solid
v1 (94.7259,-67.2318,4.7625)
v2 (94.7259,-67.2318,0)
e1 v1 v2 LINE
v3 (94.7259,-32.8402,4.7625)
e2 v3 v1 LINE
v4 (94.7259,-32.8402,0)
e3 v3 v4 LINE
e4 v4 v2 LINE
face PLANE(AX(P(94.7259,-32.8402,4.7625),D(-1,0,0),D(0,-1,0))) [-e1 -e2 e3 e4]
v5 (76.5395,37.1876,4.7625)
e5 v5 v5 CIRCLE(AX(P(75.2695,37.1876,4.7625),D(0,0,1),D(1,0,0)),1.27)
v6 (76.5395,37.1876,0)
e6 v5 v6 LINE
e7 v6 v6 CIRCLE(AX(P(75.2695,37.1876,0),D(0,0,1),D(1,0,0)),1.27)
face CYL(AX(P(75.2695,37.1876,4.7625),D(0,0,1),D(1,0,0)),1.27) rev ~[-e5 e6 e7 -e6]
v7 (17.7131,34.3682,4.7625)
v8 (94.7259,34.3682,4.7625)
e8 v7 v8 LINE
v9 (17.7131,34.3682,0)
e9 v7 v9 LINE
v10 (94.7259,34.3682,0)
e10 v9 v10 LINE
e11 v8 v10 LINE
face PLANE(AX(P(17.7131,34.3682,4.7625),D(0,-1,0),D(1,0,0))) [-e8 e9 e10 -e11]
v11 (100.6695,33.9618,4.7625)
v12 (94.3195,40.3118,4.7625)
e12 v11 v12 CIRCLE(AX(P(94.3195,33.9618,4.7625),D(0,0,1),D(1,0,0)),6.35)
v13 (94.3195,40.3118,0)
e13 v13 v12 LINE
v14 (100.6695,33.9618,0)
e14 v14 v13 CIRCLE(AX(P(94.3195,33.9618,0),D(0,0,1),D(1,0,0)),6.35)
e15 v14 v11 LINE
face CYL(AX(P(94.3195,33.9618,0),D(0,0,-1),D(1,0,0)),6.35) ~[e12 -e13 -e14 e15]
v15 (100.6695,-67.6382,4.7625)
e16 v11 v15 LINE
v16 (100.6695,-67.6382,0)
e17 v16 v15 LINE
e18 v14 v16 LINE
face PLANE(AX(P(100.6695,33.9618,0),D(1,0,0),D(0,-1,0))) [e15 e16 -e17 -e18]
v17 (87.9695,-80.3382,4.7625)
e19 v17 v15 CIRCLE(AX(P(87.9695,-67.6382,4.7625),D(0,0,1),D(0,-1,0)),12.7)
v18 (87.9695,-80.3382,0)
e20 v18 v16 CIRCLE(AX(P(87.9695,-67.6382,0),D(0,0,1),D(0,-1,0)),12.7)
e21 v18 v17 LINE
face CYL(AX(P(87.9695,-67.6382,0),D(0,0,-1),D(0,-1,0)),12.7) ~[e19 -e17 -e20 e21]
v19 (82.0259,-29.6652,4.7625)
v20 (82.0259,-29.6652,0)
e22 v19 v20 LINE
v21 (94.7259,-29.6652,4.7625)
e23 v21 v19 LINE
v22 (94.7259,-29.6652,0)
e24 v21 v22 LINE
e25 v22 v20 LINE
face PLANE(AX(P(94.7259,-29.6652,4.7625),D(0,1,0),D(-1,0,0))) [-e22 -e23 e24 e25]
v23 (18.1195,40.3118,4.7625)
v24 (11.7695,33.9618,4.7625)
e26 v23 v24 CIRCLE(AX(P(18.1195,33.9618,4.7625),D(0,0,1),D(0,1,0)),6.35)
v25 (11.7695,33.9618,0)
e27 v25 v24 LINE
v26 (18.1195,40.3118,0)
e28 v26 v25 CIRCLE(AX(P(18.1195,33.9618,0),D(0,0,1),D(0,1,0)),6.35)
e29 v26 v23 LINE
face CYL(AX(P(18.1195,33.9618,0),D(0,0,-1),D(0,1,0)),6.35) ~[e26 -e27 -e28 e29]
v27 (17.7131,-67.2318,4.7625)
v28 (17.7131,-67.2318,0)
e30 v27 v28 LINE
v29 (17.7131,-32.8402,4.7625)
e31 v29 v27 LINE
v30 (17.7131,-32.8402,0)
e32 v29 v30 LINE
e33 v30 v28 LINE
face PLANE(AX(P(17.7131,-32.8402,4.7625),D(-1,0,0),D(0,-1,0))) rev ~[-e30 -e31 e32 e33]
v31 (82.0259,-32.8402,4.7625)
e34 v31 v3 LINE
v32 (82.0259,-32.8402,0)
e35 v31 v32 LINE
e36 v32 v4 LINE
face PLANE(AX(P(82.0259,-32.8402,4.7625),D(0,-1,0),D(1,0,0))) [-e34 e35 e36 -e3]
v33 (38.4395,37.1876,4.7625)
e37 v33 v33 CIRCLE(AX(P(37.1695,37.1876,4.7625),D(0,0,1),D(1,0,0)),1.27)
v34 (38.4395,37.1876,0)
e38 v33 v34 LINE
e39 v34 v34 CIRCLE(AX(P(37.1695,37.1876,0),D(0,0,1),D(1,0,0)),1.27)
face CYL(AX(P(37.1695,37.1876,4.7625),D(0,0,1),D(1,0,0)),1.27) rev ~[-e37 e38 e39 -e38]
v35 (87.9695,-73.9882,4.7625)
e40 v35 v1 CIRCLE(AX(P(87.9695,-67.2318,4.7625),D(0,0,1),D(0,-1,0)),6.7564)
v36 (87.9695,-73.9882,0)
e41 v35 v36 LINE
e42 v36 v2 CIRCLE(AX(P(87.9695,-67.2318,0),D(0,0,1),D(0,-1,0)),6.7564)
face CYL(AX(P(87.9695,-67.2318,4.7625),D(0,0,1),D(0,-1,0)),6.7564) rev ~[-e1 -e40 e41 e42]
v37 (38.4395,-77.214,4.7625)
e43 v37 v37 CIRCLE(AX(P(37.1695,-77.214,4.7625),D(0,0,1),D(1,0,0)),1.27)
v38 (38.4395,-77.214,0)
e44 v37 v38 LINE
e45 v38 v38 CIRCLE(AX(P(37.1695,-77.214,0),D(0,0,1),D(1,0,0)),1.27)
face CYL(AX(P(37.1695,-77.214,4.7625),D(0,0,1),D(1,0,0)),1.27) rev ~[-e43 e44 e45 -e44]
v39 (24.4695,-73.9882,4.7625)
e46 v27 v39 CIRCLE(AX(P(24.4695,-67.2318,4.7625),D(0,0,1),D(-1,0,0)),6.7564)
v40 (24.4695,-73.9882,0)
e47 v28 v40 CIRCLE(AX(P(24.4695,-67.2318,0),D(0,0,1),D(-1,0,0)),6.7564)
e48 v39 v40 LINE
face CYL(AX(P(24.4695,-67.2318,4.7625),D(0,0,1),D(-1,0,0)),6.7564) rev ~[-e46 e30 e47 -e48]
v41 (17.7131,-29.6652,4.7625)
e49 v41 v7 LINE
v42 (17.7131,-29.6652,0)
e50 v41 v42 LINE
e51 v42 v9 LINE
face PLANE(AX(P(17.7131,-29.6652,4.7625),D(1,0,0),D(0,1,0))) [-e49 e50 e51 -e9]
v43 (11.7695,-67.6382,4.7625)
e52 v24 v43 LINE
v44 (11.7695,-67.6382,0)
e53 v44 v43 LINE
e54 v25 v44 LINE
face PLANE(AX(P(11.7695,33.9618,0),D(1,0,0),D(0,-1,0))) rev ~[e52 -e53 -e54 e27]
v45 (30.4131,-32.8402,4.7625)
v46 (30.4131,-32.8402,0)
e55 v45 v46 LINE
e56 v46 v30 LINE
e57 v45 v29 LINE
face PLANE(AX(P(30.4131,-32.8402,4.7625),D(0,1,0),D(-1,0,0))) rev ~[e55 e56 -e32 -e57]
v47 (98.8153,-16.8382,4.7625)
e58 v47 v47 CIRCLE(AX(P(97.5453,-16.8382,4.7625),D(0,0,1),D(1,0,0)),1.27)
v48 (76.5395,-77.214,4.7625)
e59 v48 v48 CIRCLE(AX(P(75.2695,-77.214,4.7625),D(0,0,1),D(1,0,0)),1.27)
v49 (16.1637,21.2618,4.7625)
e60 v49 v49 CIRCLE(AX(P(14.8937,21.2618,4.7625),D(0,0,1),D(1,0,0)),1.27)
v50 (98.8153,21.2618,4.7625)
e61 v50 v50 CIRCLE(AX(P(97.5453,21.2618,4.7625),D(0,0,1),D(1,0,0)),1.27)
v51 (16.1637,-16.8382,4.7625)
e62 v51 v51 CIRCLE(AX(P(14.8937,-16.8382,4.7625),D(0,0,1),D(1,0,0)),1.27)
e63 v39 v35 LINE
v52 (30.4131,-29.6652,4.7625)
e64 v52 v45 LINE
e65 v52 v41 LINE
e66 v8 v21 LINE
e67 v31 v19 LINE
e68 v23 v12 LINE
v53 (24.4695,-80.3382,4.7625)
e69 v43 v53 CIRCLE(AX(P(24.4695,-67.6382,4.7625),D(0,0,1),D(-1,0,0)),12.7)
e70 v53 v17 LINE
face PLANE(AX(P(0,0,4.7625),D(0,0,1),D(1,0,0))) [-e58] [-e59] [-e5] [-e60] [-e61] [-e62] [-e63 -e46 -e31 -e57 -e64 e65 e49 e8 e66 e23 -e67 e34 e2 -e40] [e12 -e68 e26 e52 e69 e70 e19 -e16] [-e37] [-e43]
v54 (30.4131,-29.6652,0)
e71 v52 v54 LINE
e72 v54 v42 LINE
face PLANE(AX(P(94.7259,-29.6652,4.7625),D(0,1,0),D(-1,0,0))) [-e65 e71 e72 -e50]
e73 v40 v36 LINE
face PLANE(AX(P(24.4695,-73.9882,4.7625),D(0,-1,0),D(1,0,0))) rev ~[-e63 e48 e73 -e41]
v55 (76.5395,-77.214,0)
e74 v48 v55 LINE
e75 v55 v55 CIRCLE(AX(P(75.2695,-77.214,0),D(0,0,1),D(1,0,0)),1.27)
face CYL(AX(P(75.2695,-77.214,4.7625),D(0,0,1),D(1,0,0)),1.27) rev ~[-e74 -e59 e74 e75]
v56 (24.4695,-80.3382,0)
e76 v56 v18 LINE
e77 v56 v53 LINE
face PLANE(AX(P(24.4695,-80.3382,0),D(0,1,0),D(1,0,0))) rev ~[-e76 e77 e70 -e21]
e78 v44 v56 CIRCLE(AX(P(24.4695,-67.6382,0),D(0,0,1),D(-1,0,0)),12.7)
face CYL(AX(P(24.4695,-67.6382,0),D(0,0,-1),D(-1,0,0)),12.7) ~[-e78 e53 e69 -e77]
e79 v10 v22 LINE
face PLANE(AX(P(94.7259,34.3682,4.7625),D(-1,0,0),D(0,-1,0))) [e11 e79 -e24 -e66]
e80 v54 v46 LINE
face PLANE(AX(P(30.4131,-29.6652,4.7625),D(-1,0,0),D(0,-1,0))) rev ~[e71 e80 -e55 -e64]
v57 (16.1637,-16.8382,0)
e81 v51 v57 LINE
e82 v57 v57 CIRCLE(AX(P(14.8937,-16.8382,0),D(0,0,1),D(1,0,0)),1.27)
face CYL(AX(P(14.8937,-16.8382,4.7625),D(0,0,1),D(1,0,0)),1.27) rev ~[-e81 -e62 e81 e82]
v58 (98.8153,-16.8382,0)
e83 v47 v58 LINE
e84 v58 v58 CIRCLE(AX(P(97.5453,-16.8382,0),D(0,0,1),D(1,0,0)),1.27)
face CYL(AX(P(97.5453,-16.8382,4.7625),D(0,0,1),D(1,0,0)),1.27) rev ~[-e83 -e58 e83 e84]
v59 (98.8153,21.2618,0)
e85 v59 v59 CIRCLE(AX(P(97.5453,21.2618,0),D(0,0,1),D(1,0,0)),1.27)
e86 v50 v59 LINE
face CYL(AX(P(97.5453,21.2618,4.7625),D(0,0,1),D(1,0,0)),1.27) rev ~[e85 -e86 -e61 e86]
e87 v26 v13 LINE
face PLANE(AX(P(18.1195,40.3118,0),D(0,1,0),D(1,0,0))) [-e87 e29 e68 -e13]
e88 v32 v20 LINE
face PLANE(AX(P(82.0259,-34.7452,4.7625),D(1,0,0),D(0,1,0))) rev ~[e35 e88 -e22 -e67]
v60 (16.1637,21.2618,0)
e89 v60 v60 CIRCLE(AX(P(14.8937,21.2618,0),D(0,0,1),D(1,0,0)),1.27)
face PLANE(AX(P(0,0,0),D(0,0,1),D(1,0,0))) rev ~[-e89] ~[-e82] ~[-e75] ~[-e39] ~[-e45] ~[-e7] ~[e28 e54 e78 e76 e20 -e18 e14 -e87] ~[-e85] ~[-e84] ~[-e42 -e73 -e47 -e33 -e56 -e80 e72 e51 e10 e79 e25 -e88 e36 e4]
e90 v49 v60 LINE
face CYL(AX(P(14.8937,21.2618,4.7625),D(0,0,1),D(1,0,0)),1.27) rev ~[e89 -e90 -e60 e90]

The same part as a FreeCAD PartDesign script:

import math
import FreeCAD as App
import Part
import Sketcher
from FreeCAD import Vector
Q = App.Units.Quantity

doc = App.newDocument("Part")
body = doc.addObject("PartDesign::Body", "Body")

sketch1 = body.newObject("Sketcher::SketchObject", "Sketch")
sketch1.AttachmentSupport = (doc.getObject("XY_Plane"), [""])
sketch1.MapMode = "FlatFace"
sketch1.addGeometry(Part.ArcOfCircle(Part.Circle(Vector(18, 34, 0), Vector(0, 0, 1), 6), math.radians(90), math.radians(180)), False)
sketch1.addGeometry(Part.LineSegment(Vector(12, 34, 0), Vector(12, -68, 0)), False)
sketch1.addGeometry(Part.ArcOfCircle(Part.Circle(Vector(24, -68, 0), Vector(0, 0, 1), 13), math.radians(180), math.radians(270)), False)
sketch1.addGeometry(Part.LineSegment(Vector(24, -80, 0), Vector(88, -80, 0)), False)
sketch1.addGeometry(Part.ArcOfCircle(Part.Circle(Vector(88, -68, 0), Vector(0, 0, 1), 13), math.radians(-90), math.radians(0)), False)
sketch1.addGeometry(Part.LineSegment(Vector(101, -68, 0), Vector(101, 34, 0)), False)
sketch1.addGeometry(Part.ArcOfCircle(Part.Circle(Vector(94, 34, 0), Vector(0, 0, 1), 6), math.radians(0), math.radians(90)), False)
sketch1.addGeometry(Part.LineSegment(Vector(94, 40, 0), Vector(18, 40, 0)), False)
sketch1.addConstraint(Sketcher.Constraint("Tangent", 0, 2, 1, 1))
sketch1.addConstraint(Sketcher.Constraint("Tangent", 1, 2, 2, 1))
sketch1.addConstraint(Sketcher.Constraint("Tangent", 2, 2, 3, 1))
sketch1.addConstraint(Sketcher.Constraint("Tangent", 3, 2, 4, 1))
sketch1.addConstraint(Sketcher.Constraint("Tangent", 4, 2, 5, 1))
sketch1.addConstraint(Sketcher.Constraint("Tangent", 5, 2, 6, 1))
sketch1.addConstraint(Sketcher.Constraint("Tangent", 6, 2, 7, 1))
sketch1.addConstraint(Sketcher.Constraint("Tangent", 7, 2, 0, 1))
sketch1.addConstraint(Sketcher.Constraint("Vertical", 1))
sketch1.addConstraint(Sketcher.Constraint("Horizontal", 3))
sketch1.addConstraint(Sketcher.Constraint("Vertical", 5))
sketch1.addConstraint(Sketcher.Constraint("Horizontal", 7))
sketch1.addConstraint(Sketcher.Constraint("Equal", 2, 4))
sketch1.addConstraint(Sketcher.Constraint("Equal", 0, 6))
sketch1.addConstraint(Sketcher.Constraint("Radius", 2, Q("0.5 in")))
sketch1.addConstraint(Sketcher.Constraint("Radius", 0, Q("0.25 in")))
sketch1.addConstraint(Sketcher.Constraint("DistanceX", 1, 2, 4, 2, Q("3.5 in")))
sketch1.addConstraint(Sketcher.Constraint("DistanceY", 1, 2, 1, 1, Q("4 in")))
sketch1.addConstraint(Sketcher.Constraint("DistanceX", -1, 1, 0, 3, Q("18.1195 mm")))
sketch1.addConstraint(Sketcher.Constraint("DistanceY", -1, 1, 0, 3, Q("33.9618 mm")))
pad1 = body.newObject("PartDesign::Pad", "Pad")
pad1.Profile = sketch1
pad1.Length = Q("0.1875 in")

sketch2 = body.newObject("Sketcher::SketchObject", "Sketch001")
sketch2.AttachmentSupport = (doc.getObject("XY_Plane"), [""])
sketch2.MapMode = "FlatFace"
sketch2.AttachmentOffset = App.Placement(Vector(0, 0, 0.1875 * 25.4), App.Rotation())
sketch2.addGeometry(Part.LineSegment(Vector(95, 34, 0), Vector(18, 34, 0)), False)
sketch2.addGeometry(Part.LineSegment(Vector(18, 34, 0), Vector(18, -30, 0)), False)
sketch2.addGeometry(Part.LineSegment(Vector(18, -30, 0), Vector(95, -30, 0)), False)
sketch2.addGeometry(Part.LineSegment(Vector(95, -30, 0), Vector(95, 34, 0)), False)
sketch2.addConstraint(Sketcher.Constraint("Coincident", 0, 2, 1, 1))
sketch2.addConstraint(Sketcher.Constraint("Coincident", 1, 2, 2, 1))
sketch2.addConstraint(Sketcher.Constraint("Coincident", 2, 2, 3, 1))
sketch2.addConstraint(Sketcher.Constraint("Coincident", 3, 2, 0, 1))
sketch2.addConstraint(Sketcher.Constraint("Horizontal", 0))
sketch2.addConstraint(Sketcher.Constraint("Vertical", 1))
sketch2.addConstraint(Sketcher.Constraint("Horizontal", 2))
sketch2.addConstraint(Sketcher.Constraint("Vertical", 3))
sketch2.addConstraint(Sketcher.Constraint("DistanceX", 0, 2, 0, 1, Q("3.032 in")))
sketch2.addConstraint(Sketcher.Constraint("DistanceY", 1, 2, 1, 1, Q("2.521 in")))
sketch2.addConstraint(Sketcher.Constraint("DistanceX", -1, 1, 0, 2, Q("17.713 mm")))
sketch2.addConstraint(Sketcher.Constraint("DistanceY", -1, 1, 0, 2, Q("34.3682 mm")))
pocket1 = body.newObject("PartDesign::Pocket", "Pocket")
pocket1.Profile = sketch2
pocket1.Type = "ThroughAll"

sketch3 = body.newObject("Sketcher::SketchObject", "Sketch002")
sketch3.AttachmentSupport = (doc.getObject("XY_Plane"), [""])
sketch3.MapMode = "FlatFace"
sketch3.AttachmentOffset = App.Placement(Vector(0, 0, 0.1875 * 25.4), App.Rotation())
sketch3.addGeometry(Part.LineSegment(Vector(82, -35, 0), Vector(82, -30, 0)), False)
sketch3.addGeometry(Part.LineSegment(Vector(82, -30, 0), Vector(30, -30, 0)), False)
sketch3.addGeometry(Part.LineSegment(Vector(30, -30, 0), Vector(30, -35, 0)), False)
sketch3.addGeometry(Part.LineSegment(Vector(30, -35, 0), Vector(82, -35, 0)), False)
sketch3.addConstraint(Sketcher.Constraint("Coincident", 0, 2, 1, 1))
sketch3.addConstraint(Sketcher.Constraint("Coincident", 1, 2, 2, 1))
sketch3.addConstraint(Sketcher.Constraint("Coincident", 2, 2, 3, 1))
sketch3.addConstraint(Sketcher.Constraint("Coincident", 3, 2, 0, 1))
sketch3.addConstraint(Sketcher.Constraint("Vertical", 0))
sketch3.addConstraint(Sketcher.Constraint("Horizontal", 1))
sketch3.addConstraint(Sketcher.Constraint("Vertical", 2))
sketch3.addConstraint(Sketcher.Constraint("Horizontal", 3))
sketch3.addConstraint(Sketcher.Constraint("DistanceY", 0, 1, 0, 2, Q("0.2 in")))
sketch3.addConstraint(Sketcher.Constraint("DistanceX", 1, 2, 1, 1, Q("2.032 in")))
sketch3.addConstraint(Sketcher.Constraint("DistanceX", -1, 1, 0, 2, Q("82.026 mm")))
sketch3.addConstraint(Sketcher.Constraint("DistanceY", 0, 2, -1, 1, Q("29.6652 mm")))
pocket2 = body.newObject("PartDesign::Pocket", "Pocket001")
pocket2.Profile = sketch3
pocket2.Type = "ThroughAll"

sketch4 = body.newObject("Sketcher::SketchObject", "Sketch003")
sketch4.AttachmentSupport = (doc.getObject("XY_Plane"), [""])
sketch4.MapMode = "FlatFace"
sketch4.AttachmentOffset = App.Placement(Vector(0, 0, 0.1875 * 25.4), App.Rotation())
sketch4.addGeometry(Part.LineSegment(Vector(82, -32.8, 0), Vector(82, -34.7, 0)), False)
sketch4.addGeometry(Part.LineSegment(Vector(82, -34.7, 0), Vector(30.4, -34.7, 0)), False)
sketch4.addGeometry(Part.LineSegment(Vector(30.4, -34.7, 0), Vector(30.4, -32.8, 0)), False)
sketch4.addGeometry(Part.LineSegment(Vector(30.4, -32.8, 0), Vector(17.7, -32.8, 0)), False)
sketch4.addGeometry(Part.LineSegment(Vector(17.7, -32.8, 0), Vector(17.7, -67.2, 0)), False)
sketch4.addGeometry(Part.ArcOfCircle(Part.Circle(Vector(24.5, -67.2, 0), Vector(0, 0, 1), 6.8), math.radians(180), math.radians(270)), False)
sketch4.addGeometry(Part.LineSegment(Vector(24.5, -74, 0), Vector(88, -74, 0)), False)
sketch4.addGeometry(Part.ArcOfCircle(Part.Circle(Vector(88, -67.2, 0), Vector(0, 0, 1), 6.8), math.radians(-90), math.radians(0)), False)
sketch4.addGeometry(Part.LineSegment(Vector(94.7, -67.2, 0), Vector(94.7, -32.8, 0)), False)
sketch4.addGeometry(Part.LineSegment(Vector(94.7, -32.8, 0), Vector(82, -32.8, 0)), False)
sketch4.addConstraint(Sketcher.Constraint("Coincident", 0, 2, 1, 1))
sketch4.addConstraint(Sketcher.Constraint("Coincident", 1, 2, 2, 1))
sketch4.addConstraint(Sketcher.Constraint("Coincident", 2, 2, 3, 1))
sketch4.addConstraint(Sketcher.Constraint("Coincident", 3, 2, 4, 1))
sketch4.addConstraint(Sketcher.Constraint("Tangent", 4, 2, 5, 1))
sketch4.addConstraint(Sketcher.Constraint("Tangent", 5, 2, 6, 1))
sketch4.addConstraint(Sketcher.Constraint("Tangent", 6, 2, 7, 1))
sketch4.addConstraint(Sketcher.Constraint("Tangent", 7, 2, 8, 1))
sketch4.addConstraint(Sketcher.Constraint("Coincident", 8, 2, 9, 1))
sketch4.addConstraint(Sketcher.Constraint("Coincident", 9, 2, 0, 1))
sketch4.addConstraint(Sketcher.Constraint("Vertical", 0))
sketch4.addConstraint(Sketcher.Constraint("Horizontal", 1))
sketch4.addConstraint(Sketcher.Constraint("Vertical", 2))
sketch4.addConstraint(Sketcher.Constraint("Horizontal", 3))
sketch4.addConstraint(Sketcher.Constraint("Vertical", 4))
sketch4.addConstraint(Sketcher.Constraint("Horizontal", 6))
sketch4.addConstraint(Sketcher.Constraint("Vertical", 8))
sketch4.addConstraint(Sketcher.Constraint("Horizontal", 9))
sketch4.addConstraint(Sketcher.Constraint("Equal", 5, 7))
sketch4.addConstraint(Sketcher.Constraint("Horizontal", 3, 2, 8, 2))
sketch4.addConstraint(Sketcher.Constraint("Equal", 3, 9))
sketch4.addConstraint(Sketcher.Constraint("DistanceX", 3, 2, 3, 1, Q("0.5 in")))
sketch4.addConstraint(Sketcher.Constraint("DistanceX", 6, 1, 6, 2, Q("2.5 in")))
sketch4.addConstraint(Sketcher.Constraint("Radius", 5, Q("0.266 in")))
sketch4.addConstraint(Sketcher.Constraint("DistanceY", 0, 2, 0, 1, Q("0.075 in")))
sketch4.addConstraint(Sketcher.Constraint("DistanceY", 4, 2, 4, 1, Q("1.354 in")))
sketch4.addConstraint(Sketcher.Constraint("DistanceX", -1, 1, 5, 3, Q("24.4695 mm")))
sketch4.addConstraint(Sketcher.Constraint("DistanceY", 5, 3, -1, 1, Q("67.2318 mm")))
pocket3 = body.newObject("PartDesign::Pocket", "Pocket002")
pocket3.Profile = sketch4
pocket3.Type = "ThroughAll"

sketch5 = body.newObject("Sketcher::SketchObject", "Sketch004")
sketch5.AttachmentSupport = (doc.getObject("XY_Plane"), [""])
sketch5.MapMode = "FlatFace"
sketch5.AttachmentOffset = App.Placement(Vector(0, 0, 0.1875 * 25.4), App.Rotation())
sketch5.addGeometry(Part.Circle(Vector(37.2, 37.2, 0), Vector(0, 0, 1), 1.3), False)
sketch5.addGeometry(Part.Circle(Vector(75.3, 37.2, 0), Vector(0, 0, 1), 1.3), False)
sketch5.addGeometry(Part.Circle(Vector(37.2, -77.2, 0), Vector(0, 0, 1), 1.3), False)
sketch5.addGeometry(Part.Circle(Vector(75.3, -77.2, 0), Vector(0, 0, 1), 1.3), False)
sketch5.addGeometry(Part.Circle(Vector(14.9, 21.3, 0), Vector(0, 0, 1), 1.3), False)
sketch5.addGeometry(Part.Circle(Vector(14.9, -16.8, 0), Vector(0, 0, 1), 1.3), False)
sketch5.addGeometry(Part.Circle(Vector(97.5, 21.3, 0), Vector(0, 0, 1), 1.3), False)
sketch5.addGeometry(Part.Circle(Vector(97.5, -16.8, 0), Vector(0, 0, 1), 1.3), False)
sketch5.addConstraint(Sketcher.Constraint("Equal", 0, 1))
sketch5.addConstraint(Sketcher.Constraint("Equal", 1, 2))
sketch5.addConstraint(Sketcher.Constraint("Equal", 2, 3))
sketch5.addConstraint(Sketcher.Constraint("Equal", 3, 4))
sketch5.addConstraint(Sketcher.Constraint("Equal", 4, 5))
sketch5.addConstraint(Sketcher.Constraint("Equal", 5, 6))
sketch5.addConstraint(Sketcher.Constraint("Equal", 6, 7))
sketch5.addConstraint(Sketcher.Constraint("Horizontal", 0, 3, 1, 3))
sketch5.addConstraint(Sketcher.Constraint("Horizontal", 2, 3, 3, 3))
sketch5.addConstraint(Sketcher.Constraint("Horizontal", 4, 3, 6, 3))
sketch5.addConstraint(Sketcher.Constraint("Horizontal", 5, 3, 7, 3))
sketch5.addConstraint(Sketcher.Constraint("Vertical", 0, 3, 2, 3))
sketch5.addConstraint(Sketcher.Constraint("Vertical", 1, 3, 3, 3))
sketch5.addConstraint(Sketcher.Constraint("Vertical", 4, 3, 5, 3))
sketch5.addConstraint(Sketcher.Constraint("Vertical", 6, 3, 7, 3))
sketch5.addConstraint(Sketcher.Constraint("Diameter", 0, Q("0.1 in")))
sketch5.addConstraint(Sketcher.Constraint("DistanceX", 0, 3, 1, 3, Q("1.5 in")))
sketch5.addConstraint(Sketcher.Constraint("DistanceY", 5, 3, 4, 3, Q("1.5 in")))
sketch5.addConstraint(Sketcher.Constraint("DistanceY", 2, 3, 0, 3, Q("4.504 in")))
sketch5.addConstraint(Sketcher.Constraint("DistanceX", 4, 3, 0, 3, Q("0.877 in")))
sketch5.addConstraint(Sketcher.Constraint("DistanceY", 4, 3, 0, 3, Q("0.627 in")))
sketch5.addConstraint(Sketcher.Constraint("DistanceX", 1, 3, 6, 3, Q("0.877 in")))
sketch5.addConstraint(Sketcher.Constraint("DistanceX", -1, 1, 0, 3, Q("37.1695 mm")))
sketch5.addConstraint(Sketcher.Constraint("DistanceY", -1, 1, 0, 3, Q("37.1876 mm")))
pocket4 = body.newObject("PartDesign::Pocket", "Pocket003")
pocket4.Profile = sketch5
pocket4.Type = "ThroughAll"

doc.recompute()
